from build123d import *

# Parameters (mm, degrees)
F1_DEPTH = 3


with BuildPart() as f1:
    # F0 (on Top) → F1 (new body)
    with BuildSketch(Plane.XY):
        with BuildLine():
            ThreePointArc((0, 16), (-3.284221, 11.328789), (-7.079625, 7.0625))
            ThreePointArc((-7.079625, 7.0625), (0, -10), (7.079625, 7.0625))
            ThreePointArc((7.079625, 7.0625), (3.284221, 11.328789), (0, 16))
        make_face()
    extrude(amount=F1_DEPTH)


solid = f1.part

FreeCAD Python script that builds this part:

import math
import FreeCAD as App
import Part
import Sketcher

doc = App.newDocument("Part")
body = doc.addObject("PartDesign::Body", "Body")

sketch1 = doc.addObject("Sketcher::SketchObject", "Sketch")
body.addObject(sketch1)
sketch1.AttachmentSupport = (doc.XY_Plane, [""])
sketch1.MapMode = "FlatFace"
sketch1.addGeometry([
    Part.ArcOfCircle(Part.Circle(App.Vector(-42.477699, 42.374958, 0), App.Vector(0, 0, 1), 49.999933), math.radians(-44.930626), math.radians(-31.836685)),
    Part.ArcOfCircle(Part.Circle(App.Vector(0, 0, 0), App.Vector(0, 0, 1), 10), math.radians(135.06938), math.radians(404.93062)),
    Part.ArcOfCircle(Part.Circle(App.Vector(42.477699, 42.374958, 0), App.Vector(0, 0, 1), 49.999933), math.radians(-148.163315), math.radians(-135.069374)),
], False)
sketch1.addConstraint([
    Sketcher.Constraint("Tangent", 0, 1, 1, 1),
    Sketcher.Constraint("Tangent", 1, 2, 2, 2),
    Sketcher.Constraint("Coincident", 2, 1, 0, 2),
    Sketcher.Constraint("Coincident", 1, 3, -1, 1),
    Sketcher.Constraint("Equal", 0, 2),
    Sketcher.Constraint("PointOnObject", 2, 1, -2),
    Sketcher.Constraint("Radius", 1, 10.0),
    Sketcher.Constraint("DistanceY", -1, 1, 2, 1, 16.0),
    Sketcher.Constraint("Radius", 0, 49.999933),
])
pad1 = doc.addObject("PartDesign::Pad", "Pad")
body.addObject(pad1)
pad1.Profile = sketch1
pad1.Length = 3

doc.recompute()
